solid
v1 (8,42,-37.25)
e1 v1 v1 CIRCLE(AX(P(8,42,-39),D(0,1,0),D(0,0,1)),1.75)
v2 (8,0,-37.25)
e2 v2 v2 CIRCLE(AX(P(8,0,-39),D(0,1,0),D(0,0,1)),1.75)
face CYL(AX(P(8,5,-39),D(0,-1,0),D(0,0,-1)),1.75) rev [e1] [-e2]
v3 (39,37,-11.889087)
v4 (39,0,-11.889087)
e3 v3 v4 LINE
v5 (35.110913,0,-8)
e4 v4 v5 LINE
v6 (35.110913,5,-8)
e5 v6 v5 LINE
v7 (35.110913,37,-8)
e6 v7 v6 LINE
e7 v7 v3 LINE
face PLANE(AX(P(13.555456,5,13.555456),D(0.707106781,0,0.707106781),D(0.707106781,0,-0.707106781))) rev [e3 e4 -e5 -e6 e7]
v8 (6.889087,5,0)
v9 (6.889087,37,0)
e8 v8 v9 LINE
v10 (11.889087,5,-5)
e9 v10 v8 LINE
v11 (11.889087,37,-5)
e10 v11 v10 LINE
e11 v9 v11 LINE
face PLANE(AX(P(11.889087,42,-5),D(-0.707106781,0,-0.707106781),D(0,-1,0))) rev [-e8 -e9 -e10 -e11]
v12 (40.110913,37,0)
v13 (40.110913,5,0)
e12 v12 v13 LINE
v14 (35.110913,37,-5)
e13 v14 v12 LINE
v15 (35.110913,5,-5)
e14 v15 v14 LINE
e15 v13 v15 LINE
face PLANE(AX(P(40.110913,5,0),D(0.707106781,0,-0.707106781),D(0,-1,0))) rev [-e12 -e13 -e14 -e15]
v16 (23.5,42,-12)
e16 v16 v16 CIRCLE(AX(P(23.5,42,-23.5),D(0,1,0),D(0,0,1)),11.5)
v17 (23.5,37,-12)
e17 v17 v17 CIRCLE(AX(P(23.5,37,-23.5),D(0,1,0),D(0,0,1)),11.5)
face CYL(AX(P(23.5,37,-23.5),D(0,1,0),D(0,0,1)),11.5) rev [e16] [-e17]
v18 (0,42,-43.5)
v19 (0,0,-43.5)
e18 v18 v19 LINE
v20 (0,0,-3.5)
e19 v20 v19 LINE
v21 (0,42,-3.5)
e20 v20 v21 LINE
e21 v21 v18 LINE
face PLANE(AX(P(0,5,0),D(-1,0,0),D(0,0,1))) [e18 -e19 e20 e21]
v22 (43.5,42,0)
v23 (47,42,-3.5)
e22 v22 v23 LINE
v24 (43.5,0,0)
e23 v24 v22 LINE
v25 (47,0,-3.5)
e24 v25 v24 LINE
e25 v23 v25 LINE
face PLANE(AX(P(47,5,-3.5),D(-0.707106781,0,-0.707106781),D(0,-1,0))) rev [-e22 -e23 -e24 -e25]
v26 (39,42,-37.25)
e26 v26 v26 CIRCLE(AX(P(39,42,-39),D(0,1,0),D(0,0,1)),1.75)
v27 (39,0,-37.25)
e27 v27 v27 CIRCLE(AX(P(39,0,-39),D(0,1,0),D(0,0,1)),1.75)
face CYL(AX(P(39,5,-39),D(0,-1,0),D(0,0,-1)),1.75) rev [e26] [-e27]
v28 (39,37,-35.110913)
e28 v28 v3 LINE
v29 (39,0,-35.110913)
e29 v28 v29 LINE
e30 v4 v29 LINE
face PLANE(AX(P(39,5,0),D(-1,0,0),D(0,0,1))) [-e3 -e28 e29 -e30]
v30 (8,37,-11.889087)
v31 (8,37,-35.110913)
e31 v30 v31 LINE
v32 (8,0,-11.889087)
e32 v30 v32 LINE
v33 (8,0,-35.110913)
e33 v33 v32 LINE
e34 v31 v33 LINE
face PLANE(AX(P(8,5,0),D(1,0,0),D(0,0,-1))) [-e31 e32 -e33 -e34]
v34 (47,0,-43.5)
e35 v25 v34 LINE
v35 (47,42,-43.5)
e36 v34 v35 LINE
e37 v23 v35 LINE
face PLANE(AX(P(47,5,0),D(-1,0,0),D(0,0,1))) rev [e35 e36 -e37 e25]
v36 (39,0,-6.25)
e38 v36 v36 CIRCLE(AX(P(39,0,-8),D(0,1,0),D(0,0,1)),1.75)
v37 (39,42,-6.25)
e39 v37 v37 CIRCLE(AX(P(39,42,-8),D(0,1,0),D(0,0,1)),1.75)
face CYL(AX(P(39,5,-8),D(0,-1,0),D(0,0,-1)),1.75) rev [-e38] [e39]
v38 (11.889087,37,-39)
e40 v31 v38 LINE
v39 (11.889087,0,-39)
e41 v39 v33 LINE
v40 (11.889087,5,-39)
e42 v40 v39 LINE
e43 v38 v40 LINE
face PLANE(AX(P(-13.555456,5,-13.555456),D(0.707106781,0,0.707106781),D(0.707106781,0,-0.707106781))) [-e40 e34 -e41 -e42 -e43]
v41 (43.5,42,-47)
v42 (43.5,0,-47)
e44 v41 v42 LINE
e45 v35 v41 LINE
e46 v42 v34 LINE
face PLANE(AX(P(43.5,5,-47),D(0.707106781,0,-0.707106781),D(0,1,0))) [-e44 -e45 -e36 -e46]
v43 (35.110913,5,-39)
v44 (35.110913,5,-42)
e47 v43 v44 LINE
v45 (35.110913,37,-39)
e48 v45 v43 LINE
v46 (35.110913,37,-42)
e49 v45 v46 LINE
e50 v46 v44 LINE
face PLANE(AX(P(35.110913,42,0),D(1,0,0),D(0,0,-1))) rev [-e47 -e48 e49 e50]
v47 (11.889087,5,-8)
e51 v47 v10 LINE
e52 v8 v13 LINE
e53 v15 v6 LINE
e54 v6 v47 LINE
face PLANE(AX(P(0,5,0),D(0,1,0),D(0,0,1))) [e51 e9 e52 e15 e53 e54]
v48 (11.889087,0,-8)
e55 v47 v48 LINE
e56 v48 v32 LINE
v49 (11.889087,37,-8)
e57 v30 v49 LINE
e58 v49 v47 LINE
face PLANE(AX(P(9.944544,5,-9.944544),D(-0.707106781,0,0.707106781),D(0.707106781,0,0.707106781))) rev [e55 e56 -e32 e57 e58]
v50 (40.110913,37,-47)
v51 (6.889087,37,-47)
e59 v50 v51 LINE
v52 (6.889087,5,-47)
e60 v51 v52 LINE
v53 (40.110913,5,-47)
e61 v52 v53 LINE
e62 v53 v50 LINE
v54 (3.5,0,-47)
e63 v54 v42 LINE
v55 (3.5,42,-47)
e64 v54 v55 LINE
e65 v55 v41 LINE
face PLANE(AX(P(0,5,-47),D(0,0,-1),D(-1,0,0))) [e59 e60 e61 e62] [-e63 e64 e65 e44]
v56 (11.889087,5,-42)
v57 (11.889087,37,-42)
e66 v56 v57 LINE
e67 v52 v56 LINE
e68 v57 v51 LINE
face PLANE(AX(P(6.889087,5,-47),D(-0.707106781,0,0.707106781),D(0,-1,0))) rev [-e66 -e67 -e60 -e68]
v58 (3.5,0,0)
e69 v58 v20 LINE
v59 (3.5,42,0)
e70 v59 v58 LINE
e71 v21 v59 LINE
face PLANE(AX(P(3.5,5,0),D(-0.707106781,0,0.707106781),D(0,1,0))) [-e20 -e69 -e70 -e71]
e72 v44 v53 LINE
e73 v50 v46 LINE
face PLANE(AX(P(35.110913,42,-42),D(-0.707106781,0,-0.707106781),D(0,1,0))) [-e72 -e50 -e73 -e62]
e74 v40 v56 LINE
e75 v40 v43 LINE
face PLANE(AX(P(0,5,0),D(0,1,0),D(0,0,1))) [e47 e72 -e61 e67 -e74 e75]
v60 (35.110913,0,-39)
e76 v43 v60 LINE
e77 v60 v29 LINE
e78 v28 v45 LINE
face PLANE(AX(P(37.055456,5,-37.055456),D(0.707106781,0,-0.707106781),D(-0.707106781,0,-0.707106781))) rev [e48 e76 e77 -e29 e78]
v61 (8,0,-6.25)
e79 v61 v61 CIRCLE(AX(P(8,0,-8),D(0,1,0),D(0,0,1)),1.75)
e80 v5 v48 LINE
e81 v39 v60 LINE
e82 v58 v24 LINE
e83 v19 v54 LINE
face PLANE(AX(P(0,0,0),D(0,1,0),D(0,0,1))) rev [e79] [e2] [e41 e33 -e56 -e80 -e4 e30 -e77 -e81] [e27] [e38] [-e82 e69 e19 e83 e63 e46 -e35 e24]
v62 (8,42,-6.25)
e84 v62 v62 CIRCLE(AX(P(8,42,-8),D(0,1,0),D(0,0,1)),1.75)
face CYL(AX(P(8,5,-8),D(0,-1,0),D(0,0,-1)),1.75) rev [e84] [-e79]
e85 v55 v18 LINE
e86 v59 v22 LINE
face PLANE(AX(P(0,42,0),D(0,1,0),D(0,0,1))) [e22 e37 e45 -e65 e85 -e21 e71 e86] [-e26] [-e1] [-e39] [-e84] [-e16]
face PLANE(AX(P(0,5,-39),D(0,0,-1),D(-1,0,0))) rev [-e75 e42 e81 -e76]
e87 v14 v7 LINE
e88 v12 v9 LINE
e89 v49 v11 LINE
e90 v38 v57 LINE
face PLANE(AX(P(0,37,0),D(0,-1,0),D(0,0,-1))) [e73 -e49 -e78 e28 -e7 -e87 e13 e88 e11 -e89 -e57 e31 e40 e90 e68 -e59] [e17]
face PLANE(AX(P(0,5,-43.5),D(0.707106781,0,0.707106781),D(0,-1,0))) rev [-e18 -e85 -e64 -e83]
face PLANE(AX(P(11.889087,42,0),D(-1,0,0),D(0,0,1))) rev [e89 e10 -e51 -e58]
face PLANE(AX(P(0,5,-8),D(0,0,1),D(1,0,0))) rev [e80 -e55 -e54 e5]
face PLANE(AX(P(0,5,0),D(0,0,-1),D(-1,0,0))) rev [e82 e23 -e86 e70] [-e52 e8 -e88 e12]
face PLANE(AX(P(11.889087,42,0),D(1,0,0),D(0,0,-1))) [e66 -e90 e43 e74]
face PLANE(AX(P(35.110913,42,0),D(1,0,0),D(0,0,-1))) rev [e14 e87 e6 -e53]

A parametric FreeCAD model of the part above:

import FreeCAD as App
import Part
import Sketcher
Q = App.Units.Quantity


def edges_at(feature, points):
    """Names of the edges that pass closest to the given points."""
    edges = feature.Shape.Edges
    near = lambda p: min(range(len(edges)), key=lambda i: edges[i].distToShape(Part.Vertex(*p))[0])
    return sorted({f"Edge{near(p) + 1}" for p in points})


def add_polygon(sketch, points):
    """Adds a closed chain of lines whose ends are joined by coincident constraints."""
    first, n = sketch.GeometryCount, len(points)
    for a, b in zip(points, points[1:] + points[:1]):
        sketch.addGeometry(Part.LineSegment(App.Vector(*a, 0), App.Vector(*b, 0)), False)
    for i in range(n):
        sketch.addConstraint(Sketcher.Constraint("Coincident", first + i, 2, first + (i + 1) % n, 1))

doc = App.newDocument("Part")
body = doc.addObject("PartDesign::Body", "Body")

# Sketch on XZ plane
sketch1 = body.newObject("Sketcher::SketchObject", "Sketch")
sketch1.AttachmentSupport = (doc.getObject("XZ_Plane"), [""])
sketch1.MapMode = "FlatFace"
add_polygon(sketch1, [(0, -47), (0, 0), (47, 0), (47, -47)])  # lines 0-3
add_polygon(sketch1, [(8, -35.1), (11.9, -39), (35.1, -39), (39, -35.1), (39, -11.9), (35.1, -8), (11.9, -8), (8, -11.9)])  # lines 4-11
sketch1.addGeometry(Part.Circle(App.Vector(8, -39, 0), App.Vector(0, 0, 1), 1.8), False)  # 12
sketch1.addGeometry(Part.Circle(App.Vector(8, -8, 0), App.Vector(0, 0, 1), 1.8), False)  # 13
sketch1.addGeometry(Part.Circle(App.Vector(39, -39, 0), App.Vector(0, 0, 1), 1.8), False)  # 14
sketch1.addGeometry(Part.Circle(App.Vector(39, -8, 0), App.Vector(0, 0, 1), 1.8), False)  # 15
sketch1.addConstraint(Sketcher.Constraint("Vertical", 0))
sketch1.addConstraint(Sketcher.Constraint("Horizontal", 1))
sketch1.addConstraint(Sketcher.Constraint("Vertical", 2))
sketch1.addConstraint(Sketcher.Constraint("Horizontal", 3))
sketch1.addConstraint(Sketcher.Constraint("Horizontal", 5))
sketch1.addConstraint(Sketcher.Constraint("Vertical", 7))
sketch1.addConstraint(Sketcher.Constraint("Horizontal", 9))
sketch1.addConstraint(Sketcher.Constraint("Vertical", 11))
sketch1.addConstraint(Sketcher.Constraint("Coincident", 0, 2, -1, 1))
sketch1.addConstraint(Sketcher.Constraint("Equal", 12, 13))
sketch1.addConstraint(Sketcher.Constraint("Equal", 13, 14))
sketch1.addConstraint(Sketcher.Constraint("Equal", 14, 15))
sketch1.addConstraint(Sketcher.Constraint("Perpendicular", 4, 6))
sketch1.addConstraint(Sketcher.Constraint("Perpendicular", 6, 8))
sketch1.addConstraint(Sketcher.Constraint("Perpendicular", 8, 10))
sketch1.addConstraint(Sketcher.Constraint("Horizontal", 12, 3, 14, 3))
sketch1.addConstraint(Sketcher.Constraint("Horizontal", 13, 3, 15, 3))
sketch1.addConstraint(Sketcher.Constraint("Horizontal", 14, 3, 4, 2))
sketch1.addConstraint(Sketcher.Constraint("Horizontal", 15, 3, 8, 2))
sketch1.addConstraint(Sketcher.Constraint("Horizontal", 7, 2, 10, 2))
sketch1.addConstraint(Sketcher.Constraint("Horizontal", 6, 2, 11, 2))
sketch1.addConstraint(Sketcher.Constraint("Vertical", 12, 3, 13, 3))
sketch1.addConstraint(Sketcher.Constraint("Vertical", 14, 3, 15, 3))
sketch1.addConstraint(Sketcher.Constraint("Vertical", 15, 3, 6, 2))
sketch1.addConstraint(Sketcher.Constraint("Vertical", 5, 2, 8, 2))
sketch1.addConstraint(Sketcher.Constraint("Vertical", 4, 2, 9, 2))
sketch1.addConstraint(Sketcher.Constraint("Vertical", 13, 3, 10, 2))
sketch1.addConstraint(Sketcher.Constraint("Equal", 3, 0))
sketch1.addConstraint(Sketcher.Constraint("Equal", 9, 7))
sketch1.addConstraint(Sketcher.Constraint("Diameter", 12, Q("3.5 mm")))
sketch1.addConstraint(Sketcher.Constraint("DistanceX", 1, 1, 1, 2, Q("47 mm")))
sketch1.addConstraint(Sketcher.Constraint("DistanceX", -1, 1, 12, 3, Q("8 mm")))
sketch1.addConstraint(Sketcher.Constraint("DistanceY", 12, 3, -1, 1, Q("39 mm")))
sketch1.addConstraint(Sketcher.Constraint("DistanceY", 13, 3, -1, 1, Q("8 mm")))
sketch1.addConstraint(Sketcher.Constraint("Distance", 4, Q("5.5 mm")))
pad1 = body.newObject("PartDesign::Pad", "Pad")
pad1.Profile = sketch1
pad1.Length = 5
pad1.Reversed = True

# Sketch on XZ plane
sketch2 = body.newObject("Sketcher::SketchObject", "Sketch001")
sketch2.AttachmentSupport = (doc.getObject("XZ_Plane"), [""])
sketch2.MapMode = "FlatFace"
add_polygon(sketch2, [(0, 0), (11.9, 0), (11.9, -8), (8, -11.9), (8, -35.1), (11.9, -39), (11.9, -47), (0, -47)])  # lines 0-7
sketch2.addGeometry(Part.Circle(App.Vector(8, -8, 0), App.Vector(0, 0, 1), 1.8), False)  # 8
sketch2.addGeometry(Part.Circle(App.Vector(8, -39, 0), App.Vector(0, 0, 1), 1.8), False)  # 9
add_polygon(sketch2, [(35.1, -39), (39, -35.1), (39, -11.9), (35.1, -8), (35.1, 0), (47, 0), (47, -47), (35.1, -47)])  # lines 10-17
sketch2.addGeometry(Part.Circle(App.Vector(39, -39, 0), App.Vector(0, 0, 1), 1.8), False)  # 18
sketch2.addGeometry(Part.Circle(App.Vector(39, -8, 0), App.Vector(0, 0, 1), 1.8), False)  # 19
sketch2.addConstraint(Sketcher.Constraint("Horizontal", 0))
sketch2.addConstraint(Sketcher.Constraint("Vertical", 1))
sketch2.addConstraint(Sketcher.Constraint("Vertical", 3))
sketch2.addConstraint(Sketcher.Constraint("Vertical", 5))
sketch2.addConstraint(Sketcher.Constraint("Horizontal", 6))
sketch2.addConstraint(Sketcher.Constraint("Vertical", 7))
sketch2.addConstraint(Sketcher.Constraint("Vertical", 11))
sketch2.addConstraint(Sketcher.Constraint("Vertical", 13))
sketch2.addConstraint(Sketcher.Constraint("Horizontal", 14))
sketch2.addConstraint(Sketcher.Constraint("Vertical", 15))
sketch2.addConstraint(Sketcher.Constraint("Horizontal", 16))
sketch2.addConstraint(Sketcher.Constraint("Vertical", 17))
sketch2.addConstraint(Sketcher.Constraint("Coincident", 7, 2, -1, 1))
sketch2.addConstraint(Sketcher.Constraint("Equal", 8, 9))
sketch2.addConstraint(Sketcher.Constraint("Equal", 9, 18))
sketch2.addConstraint(Sketcher.Constraint("Equal", 18, 19))
sketch2.addConstraint(Sketcher.Constraint("PointOnObject", 13, 2, -1))
sketch2.addConstraint(Sketcher.Constraint("Perpendicular", 2, 4))
sketch2.addConstraint(Sketcher.Constraint("Perpendicular", 4, 10))
sketch2.addConstraint(Sketcher.Constraint("Perpendicular", 10, 12))
sketch2.addConstraint(Sketcher.Constraint("Horizontal", 9, 3, 18, 3))
sketch2.addConstraint(Sketcher.Constraint("Horizontal", 8, 3, 19, 3))
sketch2.addConstraint(Sketcher.Constraint("Horizontal", 19, 3, 1, 2))
sketch2.addConstraint(Sketcher.Constraint("Horizontal", 18, 3, 4, 2))
sketch2.addConstraint(Sketcher.Constraint("Horizontal", 3, 2, 10, 2))
sketch2.addConstraint(Sketcher.Constraint("Horizontal", 2, 2, 11, 2))
sketch2.addConstraint(Sketcher.Constraint("Horizontal", 1, 2, 12, 2))
sketch2.addConstraint(Sketcher.Constraint("Horizontal", 6, 2, 15, 2))
sketch2.addConstraint(Sketcher.Constraint("Horizontal", 4, 2, 17, 2))
sketch2.addConstraint(Sketcher.Constraint("Vertical", 8, 3, 9, 3))
sketch2.addConstraint(Sketcher.Constraint("Vertical", 18, 3, 19, 3))
sketch2.addConstraint(Sketcher.Constraint("Vertical", 9, 3, 2, 2))
sketch2.addConstraint(Sketcher.Constraint("Vertical", 1, 2, 4, 2))
sketch2.addConstraint(Sketcher.Constraint("Vertical", 19, 3, 10, 2))
sketch2.addConstraint(Sketcher.Constraint("Vertical", 13, 2, 16, 2))
sketch2.addConstraint(Sketcher.Constraint("Equal", 6, 14))
sketch2.addConstraint(Sketcher.Constraint("Equal", 1, 5))
sketch2.addConstraint(Sketcher.Constraint("Diameter", 8, Q("3.5 mm")))
sketch2.addConstraint(Sketcher.Constraint("DistanceY", 1, 2, 1, 1, Q("8 mm")))
sketch2.addConstraint(Sketcher.Constraint("DistanceY", 7, 1, 7, 2, Q("47 mm")))
sketch2.addConstraint(Sketcher.Constraint("DistanceX", -1, 1, 8, 3, Q("8 mm")))
sketch2.addConstraint(Sketcher.Constraint("DistanceX", -1, 1, 18, 3, Q("39 mm")))
sketch2.addConstraint(Sketcher.Constraint("Distance", 2, Q("5.5 mm")))
pad2 = body.newObject("PartDesign::Pad", "Pad001")
pad2.Profile = sketch2
pad2.Length = 42
pad2.Reversed = True

# Sketch on XZ plane
sketch3 = body.newObject("Sketcher::SketchObject", "Sketch002")
sketch3.AttachmentSupport = (doc.getObject("XZ_Plane"), [""])
sketch3.MapMode = "FlatFace"
sketch3.AttachmentOffset = App.Placement(App.Vector(0, 0, -37), App.Rotation())
add_polygon(sketch3, [(0, -47), (0, 0), (47, 0), (47, -47)])  # lines 0-3
sketch3.addGeometry(Part.Circle(App.Vector(23.5, -23.5, 0), App.Vector(0, 0, 1), 11.5), False)  # 4
sketch3.addGeometry(Part.Circle(App.Vector(8, -39, 0), App.Vector(0, 0, 1), 1.8), False)  # 5
sketch3.addGeometry(Part.Circle(App.Vector(39, -39, 0), App.Vector(0, 0, 1), 1.8), False)  # 6
sketch3.addGeometry(Part.Circle(App.Vector(8, -8, 0), App.Vector(0, 0, 1), 1.8), False)  # 7
sketch3.addGeometry(Part.Circle(App.Vector(39, -8, 0), App.Vector(0, 0, 1), 1.8), False)  # 8
sketch3.addConstraint(Sketcher.Constraint("Vertical", 0))
sketch3.addConstraint(Sketcher.Constraint("Horizontal", 1))
sketch3.addConstraint(Sketcher.Constraint("Vertical", 2))
sketch3.addConstraint(Sketcher.Constraint("Horizontal", 3))
sketch3.addConstraint(Sketcher.Constraint("Coincident", 0, 2, -1, 1))
sketch3.addConstraint(Sketcher.Constraint("Equal", 5, 6))
sketch3.addConstraint(Sketcher.Constraint("Equal", 6, 7))
sketch3.addConstraint(Sketcher.Constraint("Equal", 7, 8))
sketch3.addConstraint(Sketcher.Constraint("Horizontal", 5, 3, 6, 3))
sketch3.addConstraint(Sketcher.Constraint("Horizontal", 7, 3, 8, 3))
sketch3.addConstraint(Sketcher.Constraint("Vertical", 5, 3, 7, 3))
sketch3.addConstraint(Sketcher.Constraint("Vertical", 6, 3, 8, 3))
sketch3.addConstraint(Sketcher.Constraint("Equal", 3, 0))
sketch3.addConstraint(Sketcher.Constraint("Diameter", 4, Q("23 mm")))
sketch3.addConstraint(Sketcher.Constraint("Diameter", 5, Q("3.5 mm")))
sketch3.addConstraint(Sketcher.Constraint("DistanceX", 1, 1, 1, 2, Q("47 mm")))
sketch3.addConstraint(Sketcher.Constraint("DistanceX", -1, 1, 5, 3, Q("8 mm")))
sketch3.addConstraint(Sketcher.Constraint("DistanceY", 5, 3, -1, 1, Q("39 mm")))
sketch3.addConstraint(Sketcher.Constraint("DistanceX", -1, 1, 6, 3, Q("39 mm")))
sketch3.addConstraint(Sketcher.Constraint("DistanceY", 7, 3, -1, 1, Q("8 mm")))
sketch3.addConstraint(Sketcher.Constraint("DistanceX", -1, 1, 4, 3, Q("23.5 mm")))
sketch3.addConstraint(Sketcher.Constraint("DistanceY", 4, 3, -1, 1, Q("23.5 mm")))
pad3 = body.newObject("PartDesign::Pad", "Pad002")
pad3.Profile = sketch3
pad3.Length = 5
pad3.Reversed = True
doc.recompute()

chamfer = body.newObject("PartDesign::Chamfer", "Chamfer")
chamfer.Base = (pad3, edges_at(pad3, [
    (35.111, 21, -47),
    (35.111, 21, 0),
    (11.889, 21, 0),
    (11.889, 21, -47),
]))
chamfer.Size = 5
doc.recompute()

chamfer2 = body.newObject("PartDesign::Chamfer", "Chamfer001")
chamfer2.Base = (chamfer, edges_at(chamfer, [
    (0, 21, 0),
    (0, 21, -47),
    (47, 21, -47),
    (47, 21, 0),
]))
chamfer2.Size = 3.5

doc.recompute()
